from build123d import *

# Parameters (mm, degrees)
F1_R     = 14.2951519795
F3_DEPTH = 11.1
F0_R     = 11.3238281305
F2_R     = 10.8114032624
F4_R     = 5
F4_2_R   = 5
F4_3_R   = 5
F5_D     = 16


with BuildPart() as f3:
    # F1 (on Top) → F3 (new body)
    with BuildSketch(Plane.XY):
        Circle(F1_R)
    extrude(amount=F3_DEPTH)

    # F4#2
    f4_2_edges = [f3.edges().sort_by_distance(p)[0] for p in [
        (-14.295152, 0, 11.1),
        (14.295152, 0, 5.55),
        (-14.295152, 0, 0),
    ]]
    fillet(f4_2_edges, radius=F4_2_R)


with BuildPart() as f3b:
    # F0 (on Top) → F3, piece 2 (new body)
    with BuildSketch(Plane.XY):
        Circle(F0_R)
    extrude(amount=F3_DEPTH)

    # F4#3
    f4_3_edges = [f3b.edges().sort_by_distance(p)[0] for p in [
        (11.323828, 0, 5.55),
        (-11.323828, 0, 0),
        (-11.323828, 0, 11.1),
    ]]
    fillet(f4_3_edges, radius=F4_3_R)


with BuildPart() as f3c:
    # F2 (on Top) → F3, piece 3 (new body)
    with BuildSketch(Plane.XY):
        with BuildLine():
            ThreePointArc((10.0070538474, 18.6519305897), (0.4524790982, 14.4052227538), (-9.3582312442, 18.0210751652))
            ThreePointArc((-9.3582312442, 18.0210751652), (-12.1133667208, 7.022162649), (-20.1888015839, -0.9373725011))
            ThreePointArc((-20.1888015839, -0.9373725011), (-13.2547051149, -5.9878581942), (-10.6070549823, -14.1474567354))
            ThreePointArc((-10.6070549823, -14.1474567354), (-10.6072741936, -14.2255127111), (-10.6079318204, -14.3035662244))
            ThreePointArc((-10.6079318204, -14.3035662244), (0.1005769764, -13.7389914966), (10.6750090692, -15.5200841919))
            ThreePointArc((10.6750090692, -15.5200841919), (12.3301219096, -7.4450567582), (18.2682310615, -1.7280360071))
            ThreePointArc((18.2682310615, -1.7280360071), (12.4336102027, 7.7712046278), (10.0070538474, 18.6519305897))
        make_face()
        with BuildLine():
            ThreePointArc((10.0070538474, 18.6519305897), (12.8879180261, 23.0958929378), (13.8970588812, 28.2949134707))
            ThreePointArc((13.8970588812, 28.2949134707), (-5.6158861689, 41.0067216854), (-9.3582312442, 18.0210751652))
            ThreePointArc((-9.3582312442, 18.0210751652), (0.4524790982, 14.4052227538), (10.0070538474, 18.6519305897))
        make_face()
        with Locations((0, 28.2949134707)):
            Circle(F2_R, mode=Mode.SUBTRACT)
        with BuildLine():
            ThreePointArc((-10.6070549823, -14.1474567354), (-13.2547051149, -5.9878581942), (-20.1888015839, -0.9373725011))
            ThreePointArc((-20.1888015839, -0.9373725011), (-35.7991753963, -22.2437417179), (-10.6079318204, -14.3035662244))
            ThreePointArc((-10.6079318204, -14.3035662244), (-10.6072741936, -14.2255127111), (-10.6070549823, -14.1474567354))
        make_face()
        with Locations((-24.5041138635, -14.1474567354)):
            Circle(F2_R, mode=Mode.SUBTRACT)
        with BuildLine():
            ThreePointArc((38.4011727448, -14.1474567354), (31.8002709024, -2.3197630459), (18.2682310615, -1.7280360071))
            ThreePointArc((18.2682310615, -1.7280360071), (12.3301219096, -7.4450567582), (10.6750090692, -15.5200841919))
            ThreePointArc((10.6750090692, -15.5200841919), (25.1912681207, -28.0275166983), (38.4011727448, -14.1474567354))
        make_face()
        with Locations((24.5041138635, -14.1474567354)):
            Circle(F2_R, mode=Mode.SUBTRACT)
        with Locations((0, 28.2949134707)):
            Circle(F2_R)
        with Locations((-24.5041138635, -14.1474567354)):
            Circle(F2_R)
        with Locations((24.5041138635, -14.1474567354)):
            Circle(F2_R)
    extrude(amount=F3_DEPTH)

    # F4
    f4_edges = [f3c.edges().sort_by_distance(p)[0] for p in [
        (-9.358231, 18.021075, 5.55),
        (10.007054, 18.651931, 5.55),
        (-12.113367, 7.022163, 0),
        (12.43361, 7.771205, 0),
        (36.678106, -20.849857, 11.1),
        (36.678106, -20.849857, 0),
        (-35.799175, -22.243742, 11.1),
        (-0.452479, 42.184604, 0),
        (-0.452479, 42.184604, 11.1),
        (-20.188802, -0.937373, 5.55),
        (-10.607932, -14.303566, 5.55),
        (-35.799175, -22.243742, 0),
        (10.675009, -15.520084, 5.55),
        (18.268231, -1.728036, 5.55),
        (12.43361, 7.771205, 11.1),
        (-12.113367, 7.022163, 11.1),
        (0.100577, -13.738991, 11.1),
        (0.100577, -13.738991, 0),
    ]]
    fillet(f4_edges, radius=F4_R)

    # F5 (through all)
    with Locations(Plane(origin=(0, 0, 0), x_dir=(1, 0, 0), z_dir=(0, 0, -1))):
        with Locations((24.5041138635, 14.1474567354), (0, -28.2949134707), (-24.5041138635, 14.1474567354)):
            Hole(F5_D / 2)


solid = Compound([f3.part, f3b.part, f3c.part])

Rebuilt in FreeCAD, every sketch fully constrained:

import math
import FreeCAD as App
import Part
import Sketcher

V = App.Vector
Q = App.Units.Quantity

doc = App.newDocument("Part")
body = doc.addObject("PartDesign::Body", "Body")

# Sketch on XY plane
sketch1 = body.newObject("Sketcher::SketchObject", "Sketch")
sketch1.AttachmentSupport = (doc.getObject("XY_Plane"), [""])
sketch1.MapMode = "FlatFace"
sketch1.addGeometry(Part.Circle(V(0, 0, 0), V(0, 0, 1), 14), False)
sketch1.addConstraint([
    Sketcher.Constraint("Coincident", 0, 3, -1, 1),
    Sketcher.Constraint("Diameter", 0, Q("28.590304 mm")),
])
pad1 = body.newObject("PartDesign::Pad", "Pad")
pad1.Profile = sketch1
pad1.Length = 11.1
doc.recompute()

fillet = body.newObject("PartDesign::Fillet", "Fillet")
fillet.Base = (pad1, ["Edge1"])
fillet.UseAllEdges = True
fillet.Radius = 5
body2 = doc.addObject("PartDesign::Body", "Body001")

# Sketch on XY plane
sketch2 = body2.newObject("Sketcher::SketchObject", "Sketch001")
sketch2.AttachmentSupport = (doc.getObject("XY_Plane001"), [""])
sketch2.MapMode = "FlatFace"
sketch2.addGeometry(Part.Circle(V(0, 0, 0), V(0, 0, 1), 11), False)
sketch2.addConstraint([
    Sketcher.Constraint("Coincident", 0, 3, -1, 1),
    Sketcher.Constraint("Diameter", 0, Q("22.647656 mm")),
])
pad2 = body2.newObject("PartDesign::Pad", "Pad001")
pad2.Profile = sketch2
pad2.Length = 11.1
doc.recompute()

fillet2 = body2.newObject("PartDesign::Fillet", "Fillet001")
fillet2.Base = (pad2, ["Edge1"])
fillet2.UseAllEdges = True
fillet2.Radius = 5
body3 = doc.addObject("PartDesign::Body", "Body002")

# Sketch on XY plane
sketch3 = body3.newObject("Sketcher::SketchObject", "Sketch002")
sketch3.AttachmentSupport = (doc.getObject("XY_Plane002"), [""])
sketch3.MapMode = "FlatFace"
sketch3.addGeometry([
    Part.ArcOfCircle(Part.Circle(V(-30, 17, 0), V(0, 0, 1), 21), math.radians(-61), math.radians(2)),  # 0
    Part.ArcOfCircle(Part.Circle(V(-25, -14, 0), V(0, 0, 1), 14), math.radians(72), math.radians(359)),  # 1
    Part.ArcOfCircle(Part.Circle(V(-3, -63, 0), V(0, 0, 1), 49), math.radians(74), math.radians(99)),  # 2
    Part.ArcOfCircle(Part.Circle(V(25, -14, 0), V(0, 0, 1), 14), math.radians(-174), math.radians(0)),  # 3
    Part.ArcOfCircle(Part.Circle(V(25, -14, 0), V(0, 0, 1), 14), math.radians(0), math.radians(117)),  # 4
    Part.ArcOfCircle(Part.Circle(V(44, 20, 0), V(0, 0, 1), 34), math.radians(-177), math.radians(-139)),  # 5
    Part.ArcOfCircle(Part.Circle(V(0, 28, 0), V(0, 0, 1), 14), math.radians(-44), math.radians(0)),  # 6
    Part.ArcOfCircle(Part.Circle(V(0, 28, 0), V(0, 0, 1), 14), math.radians(0), math.radians(228)),  # 7
], False)
sketch3.addConstraint([
    Sketcher.Constraint("Coincident", 0, 1, 1, 1),
    Sketcher.Constraint("Coincident", 1, 2, 2, 2),
    Sketcher.Constraint("Coincident", 2, 1, 3, 1),
    Sketcher.Constraint("Tangent", 3, 2, 4, 1),
    Sketcher.Constraint("Coincident", 4, 2, 5, 2),
    Sketcher.Constraint("Coincident", 5, 1, 6, 1),
    Sketcher.Constraint("Tangent", 6, 2, 7, 1),
    Sketcher.Constraint("Coincident", 7, 2, 0, 2),
    Sketcher.Constraint("Equal", 1, 3),
    Sketcher.Constraint("Equal", 3, 4),
    Sketcher.Constraint("Equal", 4, 6),
    Sketcher.Constraint("Equal", 6, 7),
    Sketcher.Constraint("Symmetric", 1, 3, 3, 3, -2),
    Sketcher.Constraint("PointOnObject", 6, 3, -2),
    Sketcher.Constraint("Horizontal", 4, 3, 3, 2),
    Sketcher.Constraint("Horizontal", 7, 3, 6, 2),
    Sketcher.Constraint("Radius", 0, Q("20.98274 mm")),
    Sketcher.Constraint("Radius", 1, Q("13.897059 mm")),
    Sketcher.Constraint("Radius", 2, Q("48.942793 mm")),
    Sketcher.Constraint("Radius", 5, Q("33.795006 mm")),
    Sketcher.Constraint("DistanceX", 2, 3, -1, 1, Q("2.6924 mm")),
    Sketcher.Constraint("DistanceX", 0, 1, -1, 1, Q("20.188802 mm")),
    Sketcher.Constraint("DistanceX", -1, 1, 5, 3, Q("43.753289 mm")),
    Sketcher.Constraint("DistanceY", -1, 1, 5, 3, Q("20.466879 mm")),
    Sketcher.Constraint("DistanceX", 1, 2, -1, 1, Q("10.607932 mm")),
    Sketcher.Constraint("DistanceX", -1, 1, 2, 1, Q("10.675009 mm")),
    Sketcher.Constraint("DistanceX", -1, 1, 4, 2, Q("18.268231 mm")),
    Sketcher.Constraint("DistanceY", -1, 1, 5, 1, Q("18.651931 mm")),
    Sketcher.Constraint("DistanceX", 7, 2, -1, 1, Q("9.358231 mm")),
])
pad3 = body3.newObject("PartDesign::Pad", "Pad002")
pad3.Profile = sketch3
pad3.Length = 11.1
doc.recompute()

fillet3 = body3.newObject("PartDesign::Fillet", "Fillet002")
fillet3.Base = (pad3, ["Edge1"])
fillet3.UseAllEdges = True
fillet3.Radius = 5

# Sketch on XY plane
sketch4 = body3.newObject("Sketcher::SketchObject", "Sketch003")
sketch4.AttachmentSupport = (doc.getObject("XY_Plane002"), [""])
sketch4.MapMode = "FlatFace"
sketch4.addGeometry([
    Part.Circle(V(25, -14, 0), V(0, 0, 1), 8),
    Part.Circle(V(0, 28, 0), V(0, 0, 1), 8),
    Part.Circle(V(-25, -14, 0), V(0, 0, 1), 8),
], False)
sketch4.addConstraint([
    Sketcher.Constraint("Equal", 0, 1),
    Sketcher.Constraint("Equal", 1, 2),
    Sketcher.Constraint("Symmetric", 0, 3, 2, 3, -2),
    Sketcher.Constraint("PointOnObject", 1, 3, -2),
    Sketcher.Constraint("Diameter", 0, Q("16 mm")),
    Sketcher.Constraint("DistanceY", 0, 3, 1, 3, Q("42.44237 mm")),
    Sketcher.Constraint("DistanceX", -1, 1, 0, 3, Q("24.504114 mm")),
    Sketcher.Constraint("DistanceY", 0, 3, -1, 1, Q("14.147457 mm")),
])
doc.recompute()
hole = body3.newObject("PartDesign::Hole", "Hole")
hole.Profile = sketch4
hole.ThreadType = "None"
hole.Diameter = 16
hole.DepthType = "ThroughAll"
hole.Reversed = True

doc.recompute()
